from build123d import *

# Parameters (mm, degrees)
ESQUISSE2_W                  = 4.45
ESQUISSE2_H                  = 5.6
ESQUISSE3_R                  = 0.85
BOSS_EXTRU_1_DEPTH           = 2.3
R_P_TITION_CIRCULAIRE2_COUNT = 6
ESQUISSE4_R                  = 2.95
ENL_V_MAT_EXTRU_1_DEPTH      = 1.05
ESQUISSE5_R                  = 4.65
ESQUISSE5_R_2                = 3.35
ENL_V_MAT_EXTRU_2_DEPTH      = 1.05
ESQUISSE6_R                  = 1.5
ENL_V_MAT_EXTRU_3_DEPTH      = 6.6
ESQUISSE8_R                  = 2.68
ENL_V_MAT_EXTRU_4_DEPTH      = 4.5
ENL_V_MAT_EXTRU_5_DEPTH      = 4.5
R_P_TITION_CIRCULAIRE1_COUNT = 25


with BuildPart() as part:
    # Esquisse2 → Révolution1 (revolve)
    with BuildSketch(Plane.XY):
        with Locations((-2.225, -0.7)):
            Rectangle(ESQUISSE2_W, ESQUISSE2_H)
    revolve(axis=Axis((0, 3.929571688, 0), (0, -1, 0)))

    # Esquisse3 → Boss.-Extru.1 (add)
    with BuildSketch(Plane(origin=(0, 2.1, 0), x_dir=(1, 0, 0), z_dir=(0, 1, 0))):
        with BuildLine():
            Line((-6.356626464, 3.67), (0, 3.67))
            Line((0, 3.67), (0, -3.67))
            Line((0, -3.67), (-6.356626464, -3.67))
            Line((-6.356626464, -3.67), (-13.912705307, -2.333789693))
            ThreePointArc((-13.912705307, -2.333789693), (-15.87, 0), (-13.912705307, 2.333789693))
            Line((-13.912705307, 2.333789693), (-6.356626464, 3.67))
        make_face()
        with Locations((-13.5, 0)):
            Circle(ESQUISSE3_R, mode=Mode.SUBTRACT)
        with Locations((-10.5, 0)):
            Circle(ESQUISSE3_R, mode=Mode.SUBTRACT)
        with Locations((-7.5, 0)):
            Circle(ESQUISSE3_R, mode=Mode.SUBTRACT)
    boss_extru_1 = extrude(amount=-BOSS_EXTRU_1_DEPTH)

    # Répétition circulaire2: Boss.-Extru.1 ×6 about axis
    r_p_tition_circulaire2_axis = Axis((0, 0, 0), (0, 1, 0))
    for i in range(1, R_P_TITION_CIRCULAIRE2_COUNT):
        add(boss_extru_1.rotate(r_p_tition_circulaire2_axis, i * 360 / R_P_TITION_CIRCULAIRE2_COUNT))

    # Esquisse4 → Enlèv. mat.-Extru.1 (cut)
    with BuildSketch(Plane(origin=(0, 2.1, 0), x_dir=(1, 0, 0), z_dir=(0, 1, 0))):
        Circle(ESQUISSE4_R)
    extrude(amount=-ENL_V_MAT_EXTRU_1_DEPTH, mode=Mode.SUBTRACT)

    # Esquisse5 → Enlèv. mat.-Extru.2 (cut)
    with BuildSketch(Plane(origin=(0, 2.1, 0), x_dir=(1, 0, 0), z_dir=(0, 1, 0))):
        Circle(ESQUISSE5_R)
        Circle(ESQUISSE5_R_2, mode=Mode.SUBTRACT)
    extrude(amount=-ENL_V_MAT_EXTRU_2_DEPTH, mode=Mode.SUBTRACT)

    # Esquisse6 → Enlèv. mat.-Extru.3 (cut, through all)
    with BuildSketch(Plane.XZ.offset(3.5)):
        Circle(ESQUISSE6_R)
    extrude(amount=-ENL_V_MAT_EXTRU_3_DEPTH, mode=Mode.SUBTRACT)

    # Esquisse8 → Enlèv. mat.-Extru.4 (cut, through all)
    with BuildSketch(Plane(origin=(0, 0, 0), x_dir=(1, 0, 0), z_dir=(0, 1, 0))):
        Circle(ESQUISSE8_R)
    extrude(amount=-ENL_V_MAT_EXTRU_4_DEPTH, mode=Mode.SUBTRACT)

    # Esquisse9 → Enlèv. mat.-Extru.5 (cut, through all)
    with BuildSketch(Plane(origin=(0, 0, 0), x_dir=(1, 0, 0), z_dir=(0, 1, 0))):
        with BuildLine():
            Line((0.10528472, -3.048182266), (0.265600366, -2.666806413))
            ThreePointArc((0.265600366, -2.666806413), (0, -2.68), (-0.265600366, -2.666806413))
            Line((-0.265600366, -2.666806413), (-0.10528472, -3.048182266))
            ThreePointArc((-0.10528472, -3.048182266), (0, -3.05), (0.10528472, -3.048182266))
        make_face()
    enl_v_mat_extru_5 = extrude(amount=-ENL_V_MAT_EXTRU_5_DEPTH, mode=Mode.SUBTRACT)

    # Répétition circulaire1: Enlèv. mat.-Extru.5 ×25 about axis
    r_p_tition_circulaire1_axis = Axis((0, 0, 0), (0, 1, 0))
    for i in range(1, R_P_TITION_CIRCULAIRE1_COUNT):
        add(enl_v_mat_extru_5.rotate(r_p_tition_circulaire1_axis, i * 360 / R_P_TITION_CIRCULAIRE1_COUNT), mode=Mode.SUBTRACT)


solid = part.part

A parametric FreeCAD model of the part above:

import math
import FreeCAD as App
import Part
import Sketcher
from FreeCAD import Vector
Q = App.Units.Quantity


def add_polygon(sketch, points):
    """Adds a closed chain of lines whose ends are joined by coincident constraints."""
    first, n = sketch.GeometryCount, len(points)
    for a, b in zip(points, points[1:] + points[:1]):
        sketch.addGeometry(Part.LineSegment(App.Vector(*a, 0), App.Vector(*b, 0)), False)
    for i in range(n):
        sketch.addConstraint(Sketcher.Constraint("Coincident", first + i, 2, first + (i + 1) % n, 1))

doc = App.newDocument("Part")
body = doc.addObject("PartDesign::Body", "Body")

# Sketch on XY plane
sketch1 = body.newObject("Sketcher::SketchObject", "Sketch")
sketch1.AttachmentSupport = (doc.getObject("XY_Plane"), [""])
sketch1.MapMode = "FlatFace"
add_polygon(sketch1, [(-4.45, 2.1), (-4.45, -3.5), (0, -3.5), (0, 2.1)])  # lines 0-3
sketch1.addConstraint([
    Sketcher.Constraint("Vertical", 0),
    Sketcher.Constraint("Horizontal", 1),
    Sketcher.Constraint("Vertical", 2),
    Sketcher.Constraint("Horizontal", 3),
    Sketcher.Constraint("PointOnObject", 1, 2, -2),
    Sketcher.Constraint("DistanceY", 0, 2, 0, 1, 5.6),
    Sketcher.Constraint("DistanceX", 1, 1, 1, 2, 4.45),
    Sketcher.Constraint("DistanceY", 0, 2, -1, 1, 3.5),
])
revolution = body.newObject("PartDesign::Revolution", "Revolution")
revolution.Profile = sketch1
revolution.ReferenceAxis = (sketch1, ["V_Axis"])
revolution.Angle = 360

# Sketch on XZ plane
sketch2 = body.newObject("Sketcher::SketchObject", "Sketch001")
sketch2.AttachmentSupport = (doc.getObject("XZ_Plane"), [""])
sketch2.MapMode = "FlatFace"
sketch2.AttachmentOffset = App.Placement(Vector(0, 0, -2.1), App.Rotation())
sketch2.addGeometry([
    Part.LineSegment(Vector(0, -3.67, 0), Vector(-6.356626, -3.67, 0)),  # 0
    Part.LineSegment(Vector(-6.356626, -3.67, 0), Vector(-13.912705, -2.33379, 0)),  # 1
    Part.ArcOfCircle(Part.Circle(Vector(-13.5, 0, 0), Vector(0, 0, 1), 2.37), math.radians(100.028456), math.radians(259.971544)),  # 2
    Part.LineSegment(Vector(-13.912705, 2.33379, 0), Vector(-6.356626, 3.67, 0)),  # 3
    Part.LineSegment(Vector(-6.356626, 3.67, 0), Vector(0, 3.67, 0)),  # 4
    Part.LineSegment(Vector(0, 3.67, 0), Vector(0, -3.67, 0)),  # 5
    Part.Circle(Vector(-7.5, 0, 0), Vector(0, 0, 1), 0.85),  # 6
    Part.Circle(Vector(-10.5, 0, 0), Vector(0, 0, 1), 0.85),  # 7
    Part.Circle(Vector(-13.5, 0, 0), Vector(0, 0, 1), 0.85),  # 8
], False)
sketch2.addConstraint([
    Sketcher.Constraint("Coincident", 0, 2, 1, 1),
    Sketcher.Constraint("Tangent", 1, 2, 2, 2),
    Sketcher.Constraint("Tangent", 2, 1, 3, 1),
    Sketcher.Constraint("Coincident", 3, 2, 4, 1),
    Sketcher.Constraint("Coincident", 4, 2, 5, 1),
    Sketcher.Constraint("Coincident", 5, 2, 0, 1),
    Sketcher.Constraint("Horizontal", 0),
    Sketcher.Constraint("Horizontal", 4),
    Sketcher.Constraint("Vertical", 5),
    Sketcher.Constraint("Coincident", 8, 3, 2, 3),
    Sketcher.Constraint("Equal", 6, 7),
    Sketcher.Constraint("Equal", 7, 8),
    Sketcher.Constraint("Symmetric", 4, 2, 5, 2, -1, 1),
    Sketcher.Constraint("Symmetric", 1, 2, 2, 1, -1),
    Sketcher.Constraint("PointOnObject", 6, 3, -1),
    Sketcher.Constraint("PointOnObject", 7, 3, -1),
    Sketcher.Constraint("Diameter", 6, 1.7),
    Sketcher.Constraint("Radius", 2, 2.37),
    Sketcher.Constraint("DistanceX", 2, 3, 6, 3, 6.0),
    Sketcher.Constraint("DistanceX", 2, 3, 7, 3, 3.0),
    Sketcher.Constraint("DistanceY", 5, 2, 5, 1, 7.34),
    Sketcher.Constraint("DistanceX", 2, 3, -1, 1, 13.5),
    Sketcher.Constraint("DistanceX", 0, 2, 0, 1, 6.356626),
])
pad1 = body.newObject("PartDesign::Pad", "Pad")
pad1.Profile = sketch2
pad1.Length = 2.3
doc.recompute()

polarpattern = body.newObject("PartDesign::PolarPattern", "PolarPattern")
polarpattern.Originals = [pad1]
polarpattern.Axis = (doc.getObject("Y_Axis"), [""])
polarpattern.Angle = 360
polarpattern.Occurrences = 6
body.Tip = polarpattern

# Sketch on XZ plane
sketch3 = body.newObject("Sketcher::SketchObject", "Sketch002")
sketch3.AttachmentSupport = (doc.getObject("XZ_Plane"), [""])
sketch3.MapMode = "FlatFace"
sketch3.AttachmentOffset = App.Placement(Vector(0, 0, -2.1), App.Rotation())
sketch3.addGeometry(Part.Circle(Vector(0, 0, 0), Vector(0, 0, 1), 2.95), False)
sketch3.addConstraint([
    Sketcher.Constraint("Coincident", 0, 3, -1, 1),
    Sketcher.Constraint("Diameter", 0, 5.9),
])
pocket1 = body.newObject("PartDesign::Pocket", "Pocket")
pocket1.Profile = sketch3
pocket1.Length = 1.05
pocket1.Reversed = True

# Sketch on XZ plane
sketch4 = body.newObject("Sketcher::SketchObject", "Sketch003")
sketch4.AttachmentSupport = (doc.getObject("XZ_Plane"), [""])
sketch4.MapMode = "FlatFace"
sketch4.AttachmentOffset = App.Placement(Vector(0, 0, -2.1), App.Rotation())
sketch4.addGeometry([
    Part.Circle(Vector(0, 0, 0), Vector(0, 0, 1), 4.65),
    Part.Circle(Vector(0, 0, 0), Vector(0, 0, 1), 3.35),
], False)
sketch4.addConstraint([
    Sketcher.Constraint("Coincident", 0, 3, -1, 1),
    Sketcher.Constraint("Coincident", 1, 3, -1, 1),
    Sketcher.Constraint("Diameter", 0, 9.3),
    Sketcher.Constraint("Diameter", 1, 6.7),
])
pocket2 = body.newObject("PartDesign::Pocket", "Pocket001")
pocket2.Profile = sketch4
pocket2.Length = 1.05
pocket2.Reversed = True

# Sketch on XZ plane
sketch5 = body.newObject("Sketcher::SketchObject", "Sketch004")
sketch5.AttachmentSupport = (doc.getObject("XZ_Plane"), [""])
sketch5.MapMode = "FlatFace"
sketch5.AttachmentOffset = App.Placement(Vector(0, 0, 3.5), App.Rotation())
sketch5.addGeometry(Part.Circle(Vector(0, 0, 0), Vector(0, 0, 1), 1.5), False)
sketch5.addConstraint([
    Sketcher.Constraint("Coincident", 0, 3, -1, 1),
    Sketcher.Constraint("Diameter", 0, 3.0),
])
pocket3 = body.newObject("PartDesign::Pocket", "Pocket002")
pocket3.Profile = sketch5
pocket3.Type = "ThroughAll"

# Sketch on XZ plane
sketch6 = body.newObject("Sketcher::SketchObject", "Sketch005")
sketch6.AttachmentSupport = (doc.getObject("XZ_Plane"), [""])
sketch6.MapMode = "FlatFace"
sketch6.addGeometry(Part.Circle(Vector(0, 0, 0), Vector(0, 0, 1), 2.68), False)
sketch6.addConstraint([
    Sketcher.Constraint("Coincident", 0, 3, -1, 1),
    Sketcher.Constraint("Diameter", 0, 5.36),
])
pocket4 = body.newObject("PartDesign::Pocket", "Pocket003")
pocket4.Profile = sketch6
pocket4.Type = "ThroughAll"
pocket4.Reversed = True

# Sketch on XZ plane
sketch7 = body.newObject("Sketcher::SketchObject", "Sketch006")
sketch7.AttachmentSupport = (doc.getObject("XZ_Plane"), [""])
sketch7.MapMode = "FlatFace"
sketch7.addGeometry([
    Part.LineSegment(Vector(0.105285, 3.048182, 0), Vector(0.2656, 2.666806, 0)),
    Part.ArcOfCircle(Part.Circle(Vector(0, 0, 0), Vector(0, 0, 1), 2.68), math.radians(84.312387), math.radians(95.687613)),
    Part.LineSegment(Vector(-0.2656, 2.666806, 0), Vector(-0.105285, 3.048182, 0)),
    Part.ArcOfCircle(Part.Circle(Vector(0, 0, 0), Vector(0, 0, 1), 3.05), math.radians(88.021781), math.radians(91.978219)),
], False)
sketch7.addConstraint([
    Sketcher.Constraint("Coincident", 0, 2, 1, 1),
    Sketcher.Constraint("Coincident", 1, 2, 2, 1),
    Sketcher.Constraint("Coincident", 2, 2, 3, 2),
    Sketcher.Constraint("Coincident", 3, 1, 0, 1),
    Sketcher.Constraint("Coincident", 1, 3, -1, 1),
    Sketcher.Constraint("Coincident", 3, 3, -1, 1),
    Sketcher.Constraint("Horizontal", 0, 2, 1, 2),
    Sketcher.Constraint("Horizontal", 2, 2, 3, 1),
    Sketcher.Constraint("Radius", 1, 2.68),
    Sketcher.Constraint("Radius", 3, 3.05),
    Sketcher.Constraint("Angle", 0, Q("-67.2 deg")),
    Sketcher.Constraint("Distance", 0, 0.413701),
])
pocket5 = body.newObject("PartDesign::Pocket", "Pocket004")
pocket5.Profile = sketch7
pocket5.Type = "ThroughAll"
pocket5.Reversed = True
doc.recompute()

polarpattern2 = body.newObject("PartDesign::PolarPattern", "PolarPattern001")
polarpattern2.Originals = [pocket5]
polarpattern2.Axis = (doc.getObject("Y_Axis"), [""])
polarpattern2.Angle = 360
polarpattern2.Occurrences = 25
body.Tip = polarpattern2

doc.recompute()
